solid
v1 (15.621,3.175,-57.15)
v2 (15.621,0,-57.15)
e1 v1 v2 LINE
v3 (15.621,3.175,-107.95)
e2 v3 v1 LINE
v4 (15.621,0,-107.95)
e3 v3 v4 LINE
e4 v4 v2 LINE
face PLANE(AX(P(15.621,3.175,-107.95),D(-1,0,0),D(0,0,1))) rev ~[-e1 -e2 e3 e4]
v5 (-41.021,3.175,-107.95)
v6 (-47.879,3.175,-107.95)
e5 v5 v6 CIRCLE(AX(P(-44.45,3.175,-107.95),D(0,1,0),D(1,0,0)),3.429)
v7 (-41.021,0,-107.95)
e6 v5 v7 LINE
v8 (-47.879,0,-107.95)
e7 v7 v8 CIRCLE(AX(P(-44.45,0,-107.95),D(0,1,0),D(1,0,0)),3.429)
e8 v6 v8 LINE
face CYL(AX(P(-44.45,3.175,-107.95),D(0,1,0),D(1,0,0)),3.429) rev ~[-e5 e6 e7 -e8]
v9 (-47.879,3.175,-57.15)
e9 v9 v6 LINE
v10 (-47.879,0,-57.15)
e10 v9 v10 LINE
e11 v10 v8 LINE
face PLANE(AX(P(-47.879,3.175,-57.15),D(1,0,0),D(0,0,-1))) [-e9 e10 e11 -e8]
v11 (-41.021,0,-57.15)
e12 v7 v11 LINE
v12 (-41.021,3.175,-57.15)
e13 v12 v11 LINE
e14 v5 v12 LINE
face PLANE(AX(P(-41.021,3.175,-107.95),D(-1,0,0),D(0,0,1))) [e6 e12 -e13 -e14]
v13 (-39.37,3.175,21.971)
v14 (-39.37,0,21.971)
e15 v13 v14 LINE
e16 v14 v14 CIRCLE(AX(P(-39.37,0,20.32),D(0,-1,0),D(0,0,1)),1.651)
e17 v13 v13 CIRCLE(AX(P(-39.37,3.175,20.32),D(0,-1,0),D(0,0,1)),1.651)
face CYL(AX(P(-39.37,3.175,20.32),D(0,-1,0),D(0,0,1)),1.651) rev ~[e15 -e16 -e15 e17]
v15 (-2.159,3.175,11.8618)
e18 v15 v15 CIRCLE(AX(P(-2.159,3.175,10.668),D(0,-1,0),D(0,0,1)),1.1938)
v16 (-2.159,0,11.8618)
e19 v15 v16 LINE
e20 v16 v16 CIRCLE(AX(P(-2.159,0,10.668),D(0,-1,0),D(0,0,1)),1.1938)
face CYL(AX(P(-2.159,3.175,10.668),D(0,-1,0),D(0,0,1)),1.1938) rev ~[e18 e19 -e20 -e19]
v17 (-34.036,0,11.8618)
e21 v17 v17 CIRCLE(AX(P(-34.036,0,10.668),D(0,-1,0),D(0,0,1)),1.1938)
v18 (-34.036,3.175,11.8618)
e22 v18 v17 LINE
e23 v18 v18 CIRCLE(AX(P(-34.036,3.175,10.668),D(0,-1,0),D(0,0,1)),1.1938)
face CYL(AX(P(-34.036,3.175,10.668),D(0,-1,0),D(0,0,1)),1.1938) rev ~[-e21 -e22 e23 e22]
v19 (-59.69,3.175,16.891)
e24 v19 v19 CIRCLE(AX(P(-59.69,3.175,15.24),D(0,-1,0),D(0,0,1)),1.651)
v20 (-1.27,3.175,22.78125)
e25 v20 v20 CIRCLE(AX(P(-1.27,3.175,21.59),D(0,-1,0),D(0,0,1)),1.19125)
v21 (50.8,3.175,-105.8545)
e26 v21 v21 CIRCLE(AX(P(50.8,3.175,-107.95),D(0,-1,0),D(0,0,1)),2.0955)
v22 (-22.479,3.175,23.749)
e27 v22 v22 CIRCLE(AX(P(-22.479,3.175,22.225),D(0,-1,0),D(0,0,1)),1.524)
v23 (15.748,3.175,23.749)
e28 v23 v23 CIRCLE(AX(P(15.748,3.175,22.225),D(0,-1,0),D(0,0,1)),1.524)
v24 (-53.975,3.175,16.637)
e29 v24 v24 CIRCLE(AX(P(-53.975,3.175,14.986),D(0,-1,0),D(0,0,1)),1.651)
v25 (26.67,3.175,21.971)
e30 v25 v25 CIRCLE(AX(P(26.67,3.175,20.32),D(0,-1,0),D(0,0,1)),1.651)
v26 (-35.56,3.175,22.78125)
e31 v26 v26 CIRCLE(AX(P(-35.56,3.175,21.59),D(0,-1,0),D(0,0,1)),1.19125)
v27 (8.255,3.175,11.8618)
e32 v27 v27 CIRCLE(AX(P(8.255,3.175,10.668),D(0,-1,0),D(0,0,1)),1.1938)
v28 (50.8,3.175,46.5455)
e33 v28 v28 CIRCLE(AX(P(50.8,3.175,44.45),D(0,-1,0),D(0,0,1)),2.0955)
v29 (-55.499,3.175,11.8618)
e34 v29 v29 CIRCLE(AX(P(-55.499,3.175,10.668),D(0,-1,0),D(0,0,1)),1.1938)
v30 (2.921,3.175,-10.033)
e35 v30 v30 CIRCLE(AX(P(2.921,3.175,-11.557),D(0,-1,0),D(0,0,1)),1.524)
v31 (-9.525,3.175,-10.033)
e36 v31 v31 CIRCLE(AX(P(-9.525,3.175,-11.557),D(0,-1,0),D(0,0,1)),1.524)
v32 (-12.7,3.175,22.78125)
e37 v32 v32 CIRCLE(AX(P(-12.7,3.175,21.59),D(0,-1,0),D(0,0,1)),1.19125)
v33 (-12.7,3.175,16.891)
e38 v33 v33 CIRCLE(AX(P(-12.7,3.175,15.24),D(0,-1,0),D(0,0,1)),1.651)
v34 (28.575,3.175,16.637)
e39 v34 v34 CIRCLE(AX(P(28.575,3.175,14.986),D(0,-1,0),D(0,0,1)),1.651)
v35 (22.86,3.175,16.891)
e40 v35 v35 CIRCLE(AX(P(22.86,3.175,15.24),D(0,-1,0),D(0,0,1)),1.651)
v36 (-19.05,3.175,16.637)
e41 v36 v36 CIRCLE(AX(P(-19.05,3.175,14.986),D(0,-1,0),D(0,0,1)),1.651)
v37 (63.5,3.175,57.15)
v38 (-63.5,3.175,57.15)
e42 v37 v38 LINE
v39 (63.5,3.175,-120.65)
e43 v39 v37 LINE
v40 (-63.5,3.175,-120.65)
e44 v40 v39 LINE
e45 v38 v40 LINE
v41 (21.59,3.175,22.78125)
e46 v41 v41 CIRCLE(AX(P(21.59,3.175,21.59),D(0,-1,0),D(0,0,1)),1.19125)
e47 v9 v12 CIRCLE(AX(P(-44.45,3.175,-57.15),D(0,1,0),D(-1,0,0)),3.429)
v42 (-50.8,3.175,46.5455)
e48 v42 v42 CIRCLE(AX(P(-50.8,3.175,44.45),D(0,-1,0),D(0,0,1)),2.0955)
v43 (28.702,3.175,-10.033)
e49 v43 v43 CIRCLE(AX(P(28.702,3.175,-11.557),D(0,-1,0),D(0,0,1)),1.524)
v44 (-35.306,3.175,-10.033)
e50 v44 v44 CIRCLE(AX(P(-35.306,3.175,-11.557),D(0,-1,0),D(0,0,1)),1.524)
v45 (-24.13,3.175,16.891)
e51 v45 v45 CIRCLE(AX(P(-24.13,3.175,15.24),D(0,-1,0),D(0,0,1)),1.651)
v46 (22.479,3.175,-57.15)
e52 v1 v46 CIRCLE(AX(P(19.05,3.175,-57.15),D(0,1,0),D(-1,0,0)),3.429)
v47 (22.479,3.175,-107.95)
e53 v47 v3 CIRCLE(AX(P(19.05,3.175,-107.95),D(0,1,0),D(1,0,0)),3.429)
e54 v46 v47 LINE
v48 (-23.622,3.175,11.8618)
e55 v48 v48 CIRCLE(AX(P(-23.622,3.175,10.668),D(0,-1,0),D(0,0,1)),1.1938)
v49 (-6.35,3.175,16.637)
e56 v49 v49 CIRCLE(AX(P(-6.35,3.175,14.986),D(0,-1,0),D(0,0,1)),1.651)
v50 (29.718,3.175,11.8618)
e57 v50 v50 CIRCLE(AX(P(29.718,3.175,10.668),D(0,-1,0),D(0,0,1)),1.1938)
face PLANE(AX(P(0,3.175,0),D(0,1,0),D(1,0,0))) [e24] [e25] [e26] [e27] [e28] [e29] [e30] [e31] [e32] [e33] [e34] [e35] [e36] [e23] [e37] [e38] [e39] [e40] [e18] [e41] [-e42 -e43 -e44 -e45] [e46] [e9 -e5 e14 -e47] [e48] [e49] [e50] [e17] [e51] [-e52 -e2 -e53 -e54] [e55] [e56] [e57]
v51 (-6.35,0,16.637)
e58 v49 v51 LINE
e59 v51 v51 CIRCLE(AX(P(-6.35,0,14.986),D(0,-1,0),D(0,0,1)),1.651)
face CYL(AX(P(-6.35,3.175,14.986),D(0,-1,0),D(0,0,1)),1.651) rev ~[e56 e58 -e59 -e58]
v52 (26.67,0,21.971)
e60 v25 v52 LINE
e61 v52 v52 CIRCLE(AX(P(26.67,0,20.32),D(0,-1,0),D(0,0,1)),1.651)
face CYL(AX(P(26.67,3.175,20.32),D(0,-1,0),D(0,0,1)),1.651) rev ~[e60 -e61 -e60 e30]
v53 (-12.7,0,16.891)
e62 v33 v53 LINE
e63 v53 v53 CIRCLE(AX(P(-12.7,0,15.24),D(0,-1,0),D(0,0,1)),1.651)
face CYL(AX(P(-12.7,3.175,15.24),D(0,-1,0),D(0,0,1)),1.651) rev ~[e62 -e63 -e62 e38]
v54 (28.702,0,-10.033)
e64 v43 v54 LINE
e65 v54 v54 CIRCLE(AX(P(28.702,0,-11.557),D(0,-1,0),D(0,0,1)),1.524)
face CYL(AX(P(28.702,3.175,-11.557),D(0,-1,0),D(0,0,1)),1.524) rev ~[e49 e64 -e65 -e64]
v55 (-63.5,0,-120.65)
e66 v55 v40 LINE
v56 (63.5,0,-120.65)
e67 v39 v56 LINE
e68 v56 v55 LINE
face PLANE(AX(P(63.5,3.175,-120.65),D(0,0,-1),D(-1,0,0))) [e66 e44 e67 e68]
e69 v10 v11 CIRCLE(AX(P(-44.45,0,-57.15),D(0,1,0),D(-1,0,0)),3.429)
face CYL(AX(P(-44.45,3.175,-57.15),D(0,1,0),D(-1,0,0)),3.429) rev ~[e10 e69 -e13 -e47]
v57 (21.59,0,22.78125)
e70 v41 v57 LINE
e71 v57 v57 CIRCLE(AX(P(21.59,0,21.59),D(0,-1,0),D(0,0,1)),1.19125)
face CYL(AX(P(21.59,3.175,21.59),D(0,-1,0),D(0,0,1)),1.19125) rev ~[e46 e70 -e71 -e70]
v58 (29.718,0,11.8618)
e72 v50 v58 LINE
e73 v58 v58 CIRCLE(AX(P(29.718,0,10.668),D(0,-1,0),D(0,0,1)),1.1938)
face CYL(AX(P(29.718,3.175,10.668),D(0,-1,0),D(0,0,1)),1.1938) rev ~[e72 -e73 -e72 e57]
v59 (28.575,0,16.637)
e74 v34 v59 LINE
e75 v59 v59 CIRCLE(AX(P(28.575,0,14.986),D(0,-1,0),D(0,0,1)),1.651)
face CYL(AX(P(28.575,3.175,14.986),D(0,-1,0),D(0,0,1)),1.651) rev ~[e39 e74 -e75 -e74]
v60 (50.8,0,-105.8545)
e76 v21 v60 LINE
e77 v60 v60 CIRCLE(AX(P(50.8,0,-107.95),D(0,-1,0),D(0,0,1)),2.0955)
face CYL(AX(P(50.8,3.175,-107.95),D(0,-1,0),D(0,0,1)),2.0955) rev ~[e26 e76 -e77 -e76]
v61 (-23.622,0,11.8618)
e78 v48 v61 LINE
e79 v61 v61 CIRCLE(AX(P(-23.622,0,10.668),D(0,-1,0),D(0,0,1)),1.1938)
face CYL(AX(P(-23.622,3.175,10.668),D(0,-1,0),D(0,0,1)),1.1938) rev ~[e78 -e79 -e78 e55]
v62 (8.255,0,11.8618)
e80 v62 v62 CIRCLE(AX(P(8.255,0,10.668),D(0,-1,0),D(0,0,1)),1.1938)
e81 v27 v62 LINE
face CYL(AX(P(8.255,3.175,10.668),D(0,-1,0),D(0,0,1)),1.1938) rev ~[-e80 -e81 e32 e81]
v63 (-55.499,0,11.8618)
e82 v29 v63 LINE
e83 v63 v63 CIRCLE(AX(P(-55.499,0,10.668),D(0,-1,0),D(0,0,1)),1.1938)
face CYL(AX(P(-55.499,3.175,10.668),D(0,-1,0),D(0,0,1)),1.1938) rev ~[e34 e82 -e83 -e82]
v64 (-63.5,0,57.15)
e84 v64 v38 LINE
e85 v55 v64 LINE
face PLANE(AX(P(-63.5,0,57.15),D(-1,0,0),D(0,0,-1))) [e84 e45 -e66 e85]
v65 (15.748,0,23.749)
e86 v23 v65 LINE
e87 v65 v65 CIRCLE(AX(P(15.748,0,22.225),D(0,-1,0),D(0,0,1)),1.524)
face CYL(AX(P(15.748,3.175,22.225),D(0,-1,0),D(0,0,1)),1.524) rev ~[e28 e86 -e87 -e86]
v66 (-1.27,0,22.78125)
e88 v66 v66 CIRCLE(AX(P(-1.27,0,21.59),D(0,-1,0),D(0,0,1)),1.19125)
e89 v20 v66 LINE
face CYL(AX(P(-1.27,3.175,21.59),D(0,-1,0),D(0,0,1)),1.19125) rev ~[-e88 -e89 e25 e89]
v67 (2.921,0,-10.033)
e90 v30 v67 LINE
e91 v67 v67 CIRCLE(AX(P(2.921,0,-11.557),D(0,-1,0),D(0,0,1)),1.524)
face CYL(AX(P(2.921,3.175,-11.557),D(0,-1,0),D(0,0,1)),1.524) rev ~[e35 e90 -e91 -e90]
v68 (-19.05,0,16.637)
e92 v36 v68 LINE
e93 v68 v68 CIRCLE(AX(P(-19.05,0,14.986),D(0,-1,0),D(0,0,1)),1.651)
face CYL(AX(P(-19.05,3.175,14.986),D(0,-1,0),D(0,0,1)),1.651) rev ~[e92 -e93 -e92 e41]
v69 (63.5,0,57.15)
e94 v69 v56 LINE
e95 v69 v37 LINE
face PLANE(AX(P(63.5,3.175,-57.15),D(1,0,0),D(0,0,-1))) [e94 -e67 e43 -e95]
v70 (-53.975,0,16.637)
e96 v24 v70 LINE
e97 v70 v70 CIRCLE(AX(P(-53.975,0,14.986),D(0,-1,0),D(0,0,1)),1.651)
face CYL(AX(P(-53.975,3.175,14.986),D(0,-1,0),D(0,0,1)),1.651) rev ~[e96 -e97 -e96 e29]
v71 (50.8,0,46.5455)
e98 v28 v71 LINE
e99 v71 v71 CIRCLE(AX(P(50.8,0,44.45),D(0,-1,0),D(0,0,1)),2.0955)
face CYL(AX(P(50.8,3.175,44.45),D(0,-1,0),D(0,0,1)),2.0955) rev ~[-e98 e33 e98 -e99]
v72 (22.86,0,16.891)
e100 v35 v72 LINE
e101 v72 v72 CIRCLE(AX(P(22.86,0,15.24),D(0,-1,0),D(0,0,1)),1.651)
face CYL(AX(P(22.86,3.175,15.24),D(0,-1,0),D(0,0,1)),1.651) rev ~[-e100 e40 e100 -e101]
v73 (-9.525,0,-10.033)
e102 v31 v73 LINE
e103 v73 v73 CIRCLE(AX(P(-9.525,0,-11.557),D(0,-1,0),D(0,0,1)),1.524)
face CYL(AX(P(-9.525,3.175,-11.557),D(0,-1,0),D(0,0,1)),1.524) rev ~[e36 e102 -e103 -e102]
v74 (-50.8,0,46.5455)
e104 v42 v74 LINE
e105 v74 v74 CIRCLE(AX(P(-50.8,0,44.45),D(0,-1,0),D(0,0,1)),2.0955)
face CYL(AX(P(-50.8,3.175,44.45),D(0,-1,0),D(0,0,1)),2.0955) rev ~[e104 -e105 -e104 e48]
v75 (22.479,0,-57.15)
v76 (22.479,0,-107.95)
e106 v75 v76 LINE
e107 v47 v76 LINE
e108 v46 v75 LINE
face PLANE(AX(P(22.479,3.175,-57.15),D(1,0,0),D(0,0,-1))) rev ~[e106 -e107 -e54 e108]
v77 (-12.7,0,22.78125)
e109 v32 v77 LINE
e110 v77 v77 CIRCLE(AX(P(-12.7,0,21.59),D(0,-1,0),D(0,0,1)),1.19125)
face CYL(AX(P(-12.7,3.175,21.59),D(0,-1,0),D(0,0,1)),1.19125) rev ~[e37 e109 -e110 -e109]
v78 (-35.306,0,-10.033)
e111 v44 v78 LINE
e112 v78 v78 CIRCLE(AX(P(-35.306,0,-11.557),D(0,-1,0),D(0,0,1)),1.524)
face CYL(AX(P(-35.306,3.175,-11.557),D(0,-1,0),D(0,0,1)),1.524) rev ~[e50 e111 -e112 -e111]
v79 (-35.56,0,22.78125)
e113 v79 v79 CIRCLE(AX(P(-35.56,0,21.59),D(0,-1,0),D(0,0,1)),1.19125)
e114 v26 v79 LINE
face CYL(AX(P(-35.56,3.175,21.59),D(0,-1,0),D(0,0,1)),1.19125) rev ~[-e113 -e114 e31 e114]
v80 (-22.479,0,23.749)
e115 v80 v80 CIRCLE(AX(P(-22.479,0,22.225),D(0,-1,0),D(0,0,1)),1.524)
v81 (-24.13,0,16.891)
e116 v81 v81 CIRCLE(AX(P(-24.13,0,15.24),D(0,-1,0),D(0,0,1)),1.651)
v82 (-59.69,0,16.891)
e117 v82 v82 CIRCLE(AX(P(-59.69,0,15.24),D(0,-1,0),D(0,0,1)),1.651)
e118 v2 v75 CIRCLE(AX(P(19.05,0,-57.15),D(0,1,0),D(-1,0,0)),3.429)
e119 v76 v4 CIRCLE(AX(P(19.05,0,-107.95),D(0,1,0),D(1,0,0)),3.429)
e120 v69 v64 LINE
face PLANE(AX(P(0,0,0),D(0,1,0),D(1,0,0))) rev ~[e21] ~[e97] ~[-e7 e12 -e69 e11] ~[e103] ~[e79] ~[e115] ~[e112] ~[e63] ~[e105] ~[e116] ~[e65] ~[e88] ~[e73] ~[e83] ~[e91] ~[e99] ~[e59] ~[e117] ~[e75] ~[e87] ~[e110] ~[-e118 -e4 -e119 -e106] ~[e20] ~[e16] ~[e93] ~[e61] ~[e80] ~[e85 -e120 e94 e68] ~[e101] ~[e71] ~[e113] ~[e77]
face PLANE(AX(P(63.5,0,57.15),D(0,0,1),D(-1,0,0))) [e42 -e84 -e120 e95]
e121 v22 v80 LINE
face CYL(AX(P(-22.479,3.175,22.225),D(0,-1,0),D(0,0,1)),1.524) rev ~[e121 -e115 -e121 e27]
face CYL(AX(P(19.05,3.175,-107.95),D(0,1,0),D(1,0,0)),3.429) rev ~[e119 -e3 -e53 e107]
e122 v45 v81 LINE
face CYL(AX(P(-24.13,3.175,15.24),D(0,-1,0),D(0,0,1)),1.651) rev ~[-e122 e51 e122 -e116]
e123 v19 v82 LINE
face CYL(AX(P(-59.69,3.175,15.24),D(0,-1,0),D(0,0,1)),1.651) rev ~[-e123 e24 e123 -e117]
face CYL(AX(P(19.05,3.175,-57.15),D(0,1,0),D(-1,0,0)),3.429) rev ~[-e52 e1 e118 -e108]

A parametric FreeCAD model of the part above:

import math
import FreeCAD as App
import Part
import Sketcher
Q = App.Units.Quantity


def add_polygon(sketch, points):
    """Adds a closed chain of lines whose ends are joined by coincident constraints."""
    first, n = sketch.GeometryCount, len(points)
    for a, b in zip(points, points[1:] + points[:1]):
        sketch.addGeometry(Part.LineSegment(App.Vector(*a, 0), App.Vector(*b, 0)), False)
    for i in range(n):
        sketch.addConstraint(Sketcher.Constraint("Coincident", first + i, 2, first + (i + 1) % n, 1))

doc = App.newDocument("Part")
body = doc.addObject("PartDesign::Body", "Body")

sketch1 = body.newObject("Sketcher::SketchObject", "Sketch")
sketch1.AttachmentSupport = (doc.getObject("XZ_Plane"), [""])
sketch1.MapMode = "FlatFace"
add_polygon(sketch1, [(-64, 57), (64, 57), (64, -57), (38, -57), (38, -121), (-64, -121)])
sketch1.addConstraint([
    Sketcher.Constraint("Horizontal", 0),
    Sketcher.Constraint("Vertical", 1),
    Sketcher.Constraint("Horizontal", 2),
    Sketcher.Constraint("Vertical", 3),
    Sketcher.Constraint("Horizontal", 4),
    Sketcher.Constraint("Vertical", 5),
    Sketcher.Constraint("Symmetric", 1, 2, 5, 2, -1, 1),
    Sketcher.Constraint("DistanceX", 0, 1, 0, 2, Q("5 in")),
    Sketcher.Constraint("DistanceX", 4, 2, 4, 1, Q("4 in")),
    Sketcher.Constraint("DistanceY", 1, 2, 1, 1, Q("4.5 in")),
    Sketcher.Constraint("DistanceY", 3, 2, 3, 1, Q("2.5 in")),
])
pad1 = body.newObject("PartDesign::Pad", "Pad")
pad1.Profile = sketch1
pad1.Length = Q("0.125 in")
pad1.Reversed = True

sketch2 = body.newObject("Sketcher::SketchObject", "Sketch001")
sketch2.AttachmentSupport = (doc.getObject("XZ_Plane"), [""])
sketch2.MapMode = "FlatFace"
sketch2.AttachmentOffset = App.Placement(App.Vector(0, 0, -0.125 * 25.4), App.Rotation())
sketch2.addGeometry([
    Part.Circle(App.Vector(50.8, 44.5, 0), App.Vector(0, 0, 1), 2.1),
    Part.Circle(App.Vector(-50.8, 44.5, 0), App.Vector(0, 0, 1), 2.1),
], False)
sketch2.addConstraint([
    Sketcher.Constraint("Equal", 0, 1),
    Sketcher.Constraint("Symmetric", 0, 3, 1, 3, -2),
    Sketcher.Constraint("Diameter", 0, Q("0.165 in")),
    Sketcher.Constraint("DistanceX", -1, 1, 0, 3, Q("2 in")),
    Sketcher.Constraint("DistanceY", -1, 1, 0, 3, Q("1.75 in")),
])
doc.recompute()
hole = body.newObject("PartDesign::Hole", "Hole")
hole.Profile = sketch2
hole.ThreadType = "None"
hole.Diameter = Q("0.165 in")
hole.DepthType = "ThroughAll"
hole.Reversed = True

sketch3 = body.newObject("Sketcher::SketchObject", "Sketch002")
sketch3.AttachmentSupport = (doc.getObject("XZ_Plane"), [""])
sketch3.MapMode = "FlatFace"
sketch3.AttachmentOffset = App.Placement(App.Vector(0, 0, -0.125 * 25.4), App.Rotation())
sketch3.addGeometry([
    Part.ArcOfCircle(Part.Circle(App.Vector(19.1, -108, 0), App.Vector(0, 0, 1), 3.4), math.radians(180), math.radians(360)),
    Part.LineSegment(App.Vector(15.6, -108, 0), App.Vector(15.6, -57.1, 0)),
    Part.ArcOfCircle(Part.Circle(App.Vector(19.1, -57.1, 0), App.Vector(0, 0, 1), 3.4), math.radians(0), math.radians(180)),
    Part.LineSegment(App.Vector(22.5, -57.1, 0), App.Vector(22.5, -108, 0)),
    Part.LineSegment(App.Vector(-41, -57.1, 0), App.Vector(-41, -108, 0)),
    Part.ArcOfCircle(Part.Circle(App.Vector(-44.5, -108, 0), App.Vector(0, 0, 1), 3.4), math.radians(180), math.radians(360)),
    Part.LineSegment(App.Vector(-47.9, -108, 0), App.Vector(-47.9, -57.1, 0)),
    Part.ArcOfCircle(Part.Circle(App.Vector(-44.5, -57.1, 0), App.Vector(0, 0, 1), 3.4), math.radians(0), math.radians(180)),
], False)
sketch3.addConstraint([
    Sketcher.Constraint("Tangent", 0, 1, 1, 1),
    Sketcher.Constraint("Tangent", 1, 2, 2, 2),
    Sketcher.Constraint("Tangent", 2, 1, 3, 1),
    Sketcher.Constraint("Tangent", 3, 2, 0, 2),
    Sketcher.Constraint("Tangent", 4, 2, 5, 2),
    Sketcher.Constraint("Tangent", 5, 1, 6, 1),
    Sketcher.Constraint("Tangent", 6, 2, 7, 2),
    Sketcher.Constraint("Tangent", 7, 1, 4, 1),
    Sketcher.Constraint("Vertical", 1),
    Sketcher.Constraint("Vertical", 3),
    Sketcher.Constraint("Vertical", 4),
    Sketcher.Constraint("Vertical", 6),
    Sketcher.Constraint("Equal", 2, 5),
    Sketcher.Constraint("Horizontal", 0, 3, 5, 3),
    Sketcher.Constraint("Horizontal", 2, 3, 7, 3),
    Sketcher.Constraint("DistanceY", 1, 1, 1, 2, Q("2 in")),
    Sketcher.Constraint("Radius", 0, Q("0.135 in")),
    Sketcher.Constraint("DistanceX", -1, 1, 0, 3, Q("0.75 in")),
    Sketcher.Constraint("DistanceX", 5, 3, 0, 3, Q("2.5 in")),
    Sketcher.Constraint("DistanceY", 0, 3, -1, 1, Q("4.25 in")),
])
pocket1 = body.newObject("PartDesign::Pocket", "Pocket")
pocket1.Profile = sketch3
pocket1.Type = "ThroughAll"
pocket1.Reversed = True

sketch4 = body.newObject("Sketcher::SketchObject", "Sketch003")
sketch4.AttachmentSupport = (doc.getObject("XZ_Plane"), [""])
sketch4.MapMode = "FlatFace"
sketch4.AttachmentOffset = App.Placement(App.Vector(0, 0, -0.125 * 25.4), App.Rotation())
sketch4.addGeometry([
    Part.Circle(App.Vector(29.7, 10.7, 0), App.Vector(0, 0, 1), 1.2),
    Part.Circle(App.Vector(8.3, 10.7, 0), App.Vector(0, 0, 1), 1.2),
    Part.Circle(App.Vector(-2.2, 10.7, 0), App.Vector(0, 0, 1), 1.2),
    Part.Circle(App.Vector(-23.6, 10.7, 0), App.Vector(0, 0, 1), 1.2),
    Part.Circle(App.Vector(-34, 10.7, 0), App.Vector(0, 0, 1), 1.2),
    Part.Circle(App.Vector(-55.5, 10.7, 0), App.Vector(0, 0, 1), 1.2),
], False)
sketch4.addConstraint([
    Sketcher.Constraint("Equal", 0, 1),
    Sketcher.Constraint("Equal", 1, 2),
    Sketcher.Constraint("Equal", 2, 3),
    Sketcher.Constraint("Equal", 3, 4),
    Sketcher.Constraint("Equal", 4, 5),
    Sketcher.Constraint("Horizontal", 0, 3, 1, 3),
    Sketcher.Constraint("Horizontal", 1, 3, 2, 3),
    Sketcher.Constraint("Horizontal", 2, 3, 3, 3),
    Sketcher.Constraint("Horizontal", 3, 3, 4, 3),
    Sketcher.Constraint("Horizontal", 4, 3, 5, 3),
    Sketcher.Constraint("Diameter", 0, Q("0.094 in")),
    Sketcher.Constraint("DistanceX", 3, 3, 0, 3, Q("2.1 in")),
    Sketcher.Constraint("DistanceX", 5, 3, 2, 3, Q("2.1 in")),
    Sketcher.Constraint("DistanceX", -1, 1, 0, 3, Q("1.17 in")),
    Sketcher.Constraint("DistanceY", -1, 1, 0, 3, Q("0.42 in")),
    Sketcher.Constraint("DistanceX", 4, 3, -1, 1, Q("1.34 in")),
    Sketcher.Constraint("DistanceX", 2, 3, 1, 3, Q("0.41 in")),
    Sketcher.Constraint("DistanceX", -1, 1, 1, 3, Q("0.325 in")),
])
doc.recompute()
hole2 = body.newObject("PartDesign::Hole", "Hole001")
hole2.Profile = sketch4
hole2.ThreadType = "None"
hole2.Diameter = Q("0.094 in")
hole2.DepthType = "ThroughAll"
hole2.Reversed = True

sketch5 = body.newObject("Sketcher::SketchObject", "Sketch004")
sketch5.AttachmentSupport = (doc.getObject("XZ_Plane"), [""])
sketch5.MapMode = "FlatFace"
sketch5.AttachmentOffset = App.Placement(App.Vector(0, 0, -0.125 * 25.4), App.Rotation())
sketch5.addGeometry([
    Part.Circle(App.Vector(-54, 15, 0), App.Vector(0, 0, 1), 1.7),
    Part.Circle(App.Vector(-19.1, 15, 0), App.Vector(0, 0, 1), 1.7),
    Part.Circle(App.Vector(-6.3, 15, 0), App.Vector(0, 0, 1), 1.7),
    Part.Circle(App.Vector(28.6, 15, 0), App.Vector(0, 0, 1), 1.7),
], False)
sketch5.addConstraint([
    Sketcher.Constraint("Equal", 0, 1),
    Sketcher.Constraint("Equal", 1, 2),
    Sketcher.Constraint("Equal", 2, 3),
    Sketcher.Constraint("Horizontal", 0, 3, 1, 3),
    Sketcher.Constraint("Horizontal", 1, 3, 2, 3),
    Sketcher.Constraint("Horizontal", 2, 3, 3, 3),
    Sketcher.Constraint("Diameter", 0, Q("0.13 in")),
    Sketcher.Constraint("DistanceX", 1, 3, 2, 3, Q("0.5 in")),
    Sketcher.Constraint("DistanceY", -1, 1, 0, 3, Q("0.59 in")),
    Sketcher.Constraint("DistanceX", 1, 3, -1, 1, Q("0.75 in")),
    Sketcher.Constraint("DistanceX", 0, 3, 3, 3, Q("3.25 in")),
    Sketcher.Constraint("DistanceX", 0, 3, -1, 1, Q("2.125 in")),
])
doc.recompute()
hole3 = body.newObject("PartDesign::Hole", "Hole002")
hole3.Profile = sketch5
hole3.ThreadType = "None"
hole3.Diameter = Q("0.13 in")
hole3.DepthType = "ThroughAll"
hole3.Reversed = True

sketch6 = body.newObject("Sketcher::SketchObject", "Sketch005")
sketch6.AttachmentSupport = (doc.getObject("XZ_Plane"), [""])
sketch6.MapMode = "FlatFace"
sketch6.AttachmentOffset = App.Placement(App.Vector(0, 0, -0.125 * 25.4), App.Rotation())
sketch6.addGeometry([
    Part.Circle(App.Vector(22.9, 15.2, 0), App.Vector(0, 0, 1), 1.7),
    Part.Circle(App.Vector(-12.7, 15.2, 0), App.Vector(0, 0, 1), 1.7),
    Part.Circle(App.Vector(-24.1, 15.2, 0), App.Vector(0, 0, 1), 1.7),
    Part.Circle(App.Vector(-59.7, 15.2, 0), App.Vector(0, 0, 1), 1.7),
], False)
sketch6.addConstraint([
    Sketcher.Constraint("Equal", 0, 1),
    Sketcher.Constraint("Equal", 1, 2),
    Sketcher.Constraint("Equal", 2, 3),
    Sketcher.Constraint("Horizontal", 0, 3, 1, 3),
    Sketcher.Constraint("Horizontal", 1, 3, 2, 3),
    Sketcher.Constraint("Horizontal", 2, 3, 3, 3),
    Sketcher.Constraint("Diameter", 0, Q("0.13 in")),
    Sketcher.Constraint("DistanceX", -1, 1, 0, 3, Q("0.9 in")),
    Sketcher.Constraint("DistanceY", -1, 1, 0, 3, Q("0.6 in")),
    Sketcher.Constraint("DistanceX", 1, 3, -1, 1, Q("0.5 in")),
    Sketcher.Constraint("DistanceX", 3, 3, 2, 3, Q("1.4 in")),
    Sketcher.Constraint("DistanceX", 2, 3, -1, 1, Q("0.95 in")),
])
doc.recompute()
hole4 = body.newObject("PartDesign::Hole", "Hole003")
hole4.Profile = sketch6
hole4.ThreadType = "None"
hole4.Diameter = Q("0.13 in")
hole4.DepthType = "ThroughAll"
hole4.Reversed = True

sketch7 = body.newObject("Sketcher::SketchObject", "Sketch006")
sketch7.AttachmentSupport = (doc.getObject("XZ_Plane"), [""])
sketch7.MapMode = "FlatFace"
sketch7.AttachmentOffset = App.Placement(App.Vector(0, 0, -0.125 * 25.4), App.Rotation())
sketch7.addGeometry([
    Part.Circle(App.Vector(26.7, 20.3, 0), App.Vector(0, 0, 1), 1.7),
    Part.Circle(App.Vector(-39.4, 20.3, 0), App.Vector(0, 0, 1), 1.7),
], False)
sketch7.addConstraint([
    Sketcher.Constraint("Equal", 0, 1),
    Sketcher.Constraint("Horizontal", 0, 3, 1, 3),
    Sketcher.Constraint("Diameter", 0, Q("0.13 in")),
    Sketcher.Constraint("DistanceY", -1, 1, 0, 3, Q("0.8 in")),
    Sketcher.Constraint("DistanceX", 1, 3, 0, 3, Q("2.6 in")),
    Sketcher.Constraint("DistanceX", -1, 1, 0, 3, Q("1.05 in")),
])
doc.recompute()
hole5 = body.newObject("PartDesign::Hole", "Hole004")
hole5.Profile = sketch7
hole5.ThreadType = "None"
hole5.Diameter = Q("0.13 in")
hole5.DepthType = "ThroughAll"
hole5.Reversed = True

sketch8 = body.newObject("Sketcher::SketchObject", "Sketch007")
sketch8.AttachmentSupport = (doc.getObject("XZ_Plane"), [""])
sketch8.MapMode = "FlatFace"
sketch8.AttachmentOffset = App.Placement(App.Vector(0, 0, -0.125 * 25.4), App.Rotation())
sketch8.addGeometry([
    Part.Circle(App.Vector(21.6, 21.6, 0), App.Vector(0, 0, 1), 1.2),
    Part.Circle(App.Vector(-1.3, 21.6, 0), App.Vector(0, 0, 1), 1.2),
    Part.Circle(App.Vector(-12.7, 21.6, 0), App.Vector(0, 0, 1), 1.2),
    Part.Circle(App.Vector(-35.6, 21.6, 0), App.Vector(0, 0, 1), 1.2),
], False)
sketch8.addConstraint([
    Sketcher.Constraint("Equal", 0, 1),
    Sketcher.Constraint("Equal", 1, 2),
    Sketcher.Constraint("Equal", 2, 3),
    Sketcher.Constraint("Horizontal", 0, 3, 1, 3),
    Sketcher.Constraint("Horizontal", 1, 3, 2, 3),
    Sketcher.Constraint("Horizontal", 2, 3, 3, 3),
    Sketcher.Constraint("Diameter", 0, Q("0.0938 in")),
    Sketcher.Constraint("DistanceX", 2, 3, -1, 1, Q("0.5 in")),
    Sketcher.Constraint("DistanceX", 3, 3, -1, 1, Q("1.4 in")),
    Sketcher.Constraint("DistanceX", 1, 3, 0, 3, Q("0.9 in")),
    Sketcher.Constraint("DistanceX", -1, 1, 0, 3, Q("0.85 in")),
    Sketcher.Constraint("DistanceY", -1, 1, 0, 3, Q("0.85 in")),
])
doc.recompute()
hole6 = body.newObject("PartDesign::Hole", "Hole005")
hole6.Profile = sketch8
hole6.ThreadType = "None"
hole6.Diameter = Q("0.0937992 in")
hole6.DepthType = "ThroughAll"
hole6.Reversed = True

sketch9 = body.newObject("Sketcher::SketchObject", "Sketch008")
sketch9.AttachmentSupport = (doc.getObject("XZ_Plane"), [""])
sketch9.MapMode = "FlatFace"
sketch9.AttachmentOffset = App.Placement(App.Vector(0, 0, -0.125 * 25.4), App.Rotation())
sketch9.addGeometry([
    Part.Circle(App.Vector(-35.3, -11.6, 0), App.Vector(0, 0, 1), 1.5),
    Part.Circle(App.Vector(2.9, -11.6, 0), App.Vector(0, 0, 1), 1.5),
    Part.Circle(App.Vector(-22.5, 22.2, 0), App.Vector(0, 0, 1), 1.5),
    Part.Circle(App.Vector(15.7, 22.2, 0), App.Vector(0, 0, 1), 1.5),
    Part.Circle(App.Vector(-9.5, -11.6, 0), App.Vector(0, 0, 1), 1.5),
    Part.Circle(App.Vector(28.7, -11.6, 0), App.Vector(0, 0, 1), 1.5),
], False)
sketch9.addConstraint([
    Sketcher.Constraint("Equal", 0, 1),
    Sketcher.Constraint("Equal", 1, 2),
    Sketcher.Constraint("Equal", 2, 3),
    Sketcher.Constraint("Equal", 3, 4),
    Sketcher.Constraint("Equal", 4, 5),
    Sketcher.Constraint("Horizontal", 0, 3, 1, 3),
    Sketcher.Constraint("Horizontal", 2, 3, 3, 3),
    Sketcher.Constraint("Horizontal", 1, 3, 4, 3),
    Sketcher.Constraint("Horizontal", 4, 3, 5, 3),
    Sketcher.Constraint("Diameter", 0, Q("0.12 in")),
    Sketcher.Constraint("DistanceX", 2, 3, 1, 3, Q("1 in")),
    Sketcher.Constraint("DistanceX", 0, 3, -1, 1, Q("1.39 in")),
    Sketcher.Constraint("DistanceX", -1, 1, 3, 3, Q("0.62 in")),
    Sketcher.Constraint("DistanceX", -1, 1, 5, 3, Q("1.13 in")),
    Sketcher.Constraint("DistanceY", 0, 3, 2, 3, Q("1.33 in")),
    Sketcher.Constraint("DistanceX", 4, 3, 1, 3, Q("0.49 in")),
    Sketcher.Constraint("DistanceY", 0, 3, -1, 1, Q("0.455 in")),
    Sketcher.Constraint("DistanceX", -1, 1, 1, 3, Q("0.115 in")),
])
doc.recompute()
hole7 = body.newObject("PartDesign::Hole", "Hole006")
hole7.Profile = sketch9
hole7.ThreadType = "None"
hole7.Diameter = Q("0.12 in")
hole7.DepthType = "ThroughAll"
hole7.Reversed = True

sketch10 = body.newObject("Sketcher::SketchObject", "Sketch009")
sketch10.AttachmentSupport = (doc.getObject("XZ_Plane"), [""])
sketch10.MapMode = "FlatFace"
sketch10.AttachmentOffset = App.Placement(App.Vector(0, 0, -0.125 * 25.4), App.Rotation())
add_polygon(sketch10, [(38, -121), (38, -57), (64, -57), (64, -121)])
sketch10.addConstraint([
    Sketcher.Constraint("Vertical", 0),
    Sketcher.Constraint("Horizontal", 1),
    Sketcher.Constraint("Vertical", 2),
    Sketcher.Constraint("Horizontal", 3),
    Sketcher.Constraint("DistanceX", 1, 1, 1, 2, Q("1 in")),
    Sketcher.Constraint("DistanceY", 0, 1, 0, 2, Q("2.5 in")),
    Sketcher.Constraint("DistanceX", -1, 1, 0, 2, Q("1.5 in")),
    Sketcher.Constraint("DistanceY", 0, 2, -1, 1, Q("2.25 in")),
])
pad2 = body.newObject("PartDesign::Pad", "Pad001")
pad2.Profile = sketch10
pad2.Length = Q("0.125 in")

sketch11 = body.newObject("Sketcher::SketchObject", "Sketch010")
sketch11.AttachmentSupport = (doc.getObject("XZ_Plane"), [""])
sketch11.MapMode = "FlatFace"
sketch11.AttachmentOffset = App.Placement(App.Vector(0, 0, -0.125 * 25.4), App.Rotation())
sketch11.addGeometry(Part.Circle(App.Vector(50.8, -108, 0), App.Vector(0, 0, 1), 2.1), False)
sketch11.addConstraint([
    Sketcher.Constraint("Diameter", 0, Q("0.165 in")),
    Sketcher.Constraint("DistanceX", -1, 1, 0, 3, Q("2 in")),
    Sketcher.Constraint("DistanceY", 0, 3, -1, 1, Q("4.25 in")),
])
doc.recompute()
hole8 = body.newObject("PartDesign::Hole", "Hole007")
hole8.Profile = sketch11
hole8.ThreadType = "None"
hole8.Diameter = Q("0.165 in")
hole8.DepthType = "ThroughAll"
hole8.Reversed = True

doc.recompute()
